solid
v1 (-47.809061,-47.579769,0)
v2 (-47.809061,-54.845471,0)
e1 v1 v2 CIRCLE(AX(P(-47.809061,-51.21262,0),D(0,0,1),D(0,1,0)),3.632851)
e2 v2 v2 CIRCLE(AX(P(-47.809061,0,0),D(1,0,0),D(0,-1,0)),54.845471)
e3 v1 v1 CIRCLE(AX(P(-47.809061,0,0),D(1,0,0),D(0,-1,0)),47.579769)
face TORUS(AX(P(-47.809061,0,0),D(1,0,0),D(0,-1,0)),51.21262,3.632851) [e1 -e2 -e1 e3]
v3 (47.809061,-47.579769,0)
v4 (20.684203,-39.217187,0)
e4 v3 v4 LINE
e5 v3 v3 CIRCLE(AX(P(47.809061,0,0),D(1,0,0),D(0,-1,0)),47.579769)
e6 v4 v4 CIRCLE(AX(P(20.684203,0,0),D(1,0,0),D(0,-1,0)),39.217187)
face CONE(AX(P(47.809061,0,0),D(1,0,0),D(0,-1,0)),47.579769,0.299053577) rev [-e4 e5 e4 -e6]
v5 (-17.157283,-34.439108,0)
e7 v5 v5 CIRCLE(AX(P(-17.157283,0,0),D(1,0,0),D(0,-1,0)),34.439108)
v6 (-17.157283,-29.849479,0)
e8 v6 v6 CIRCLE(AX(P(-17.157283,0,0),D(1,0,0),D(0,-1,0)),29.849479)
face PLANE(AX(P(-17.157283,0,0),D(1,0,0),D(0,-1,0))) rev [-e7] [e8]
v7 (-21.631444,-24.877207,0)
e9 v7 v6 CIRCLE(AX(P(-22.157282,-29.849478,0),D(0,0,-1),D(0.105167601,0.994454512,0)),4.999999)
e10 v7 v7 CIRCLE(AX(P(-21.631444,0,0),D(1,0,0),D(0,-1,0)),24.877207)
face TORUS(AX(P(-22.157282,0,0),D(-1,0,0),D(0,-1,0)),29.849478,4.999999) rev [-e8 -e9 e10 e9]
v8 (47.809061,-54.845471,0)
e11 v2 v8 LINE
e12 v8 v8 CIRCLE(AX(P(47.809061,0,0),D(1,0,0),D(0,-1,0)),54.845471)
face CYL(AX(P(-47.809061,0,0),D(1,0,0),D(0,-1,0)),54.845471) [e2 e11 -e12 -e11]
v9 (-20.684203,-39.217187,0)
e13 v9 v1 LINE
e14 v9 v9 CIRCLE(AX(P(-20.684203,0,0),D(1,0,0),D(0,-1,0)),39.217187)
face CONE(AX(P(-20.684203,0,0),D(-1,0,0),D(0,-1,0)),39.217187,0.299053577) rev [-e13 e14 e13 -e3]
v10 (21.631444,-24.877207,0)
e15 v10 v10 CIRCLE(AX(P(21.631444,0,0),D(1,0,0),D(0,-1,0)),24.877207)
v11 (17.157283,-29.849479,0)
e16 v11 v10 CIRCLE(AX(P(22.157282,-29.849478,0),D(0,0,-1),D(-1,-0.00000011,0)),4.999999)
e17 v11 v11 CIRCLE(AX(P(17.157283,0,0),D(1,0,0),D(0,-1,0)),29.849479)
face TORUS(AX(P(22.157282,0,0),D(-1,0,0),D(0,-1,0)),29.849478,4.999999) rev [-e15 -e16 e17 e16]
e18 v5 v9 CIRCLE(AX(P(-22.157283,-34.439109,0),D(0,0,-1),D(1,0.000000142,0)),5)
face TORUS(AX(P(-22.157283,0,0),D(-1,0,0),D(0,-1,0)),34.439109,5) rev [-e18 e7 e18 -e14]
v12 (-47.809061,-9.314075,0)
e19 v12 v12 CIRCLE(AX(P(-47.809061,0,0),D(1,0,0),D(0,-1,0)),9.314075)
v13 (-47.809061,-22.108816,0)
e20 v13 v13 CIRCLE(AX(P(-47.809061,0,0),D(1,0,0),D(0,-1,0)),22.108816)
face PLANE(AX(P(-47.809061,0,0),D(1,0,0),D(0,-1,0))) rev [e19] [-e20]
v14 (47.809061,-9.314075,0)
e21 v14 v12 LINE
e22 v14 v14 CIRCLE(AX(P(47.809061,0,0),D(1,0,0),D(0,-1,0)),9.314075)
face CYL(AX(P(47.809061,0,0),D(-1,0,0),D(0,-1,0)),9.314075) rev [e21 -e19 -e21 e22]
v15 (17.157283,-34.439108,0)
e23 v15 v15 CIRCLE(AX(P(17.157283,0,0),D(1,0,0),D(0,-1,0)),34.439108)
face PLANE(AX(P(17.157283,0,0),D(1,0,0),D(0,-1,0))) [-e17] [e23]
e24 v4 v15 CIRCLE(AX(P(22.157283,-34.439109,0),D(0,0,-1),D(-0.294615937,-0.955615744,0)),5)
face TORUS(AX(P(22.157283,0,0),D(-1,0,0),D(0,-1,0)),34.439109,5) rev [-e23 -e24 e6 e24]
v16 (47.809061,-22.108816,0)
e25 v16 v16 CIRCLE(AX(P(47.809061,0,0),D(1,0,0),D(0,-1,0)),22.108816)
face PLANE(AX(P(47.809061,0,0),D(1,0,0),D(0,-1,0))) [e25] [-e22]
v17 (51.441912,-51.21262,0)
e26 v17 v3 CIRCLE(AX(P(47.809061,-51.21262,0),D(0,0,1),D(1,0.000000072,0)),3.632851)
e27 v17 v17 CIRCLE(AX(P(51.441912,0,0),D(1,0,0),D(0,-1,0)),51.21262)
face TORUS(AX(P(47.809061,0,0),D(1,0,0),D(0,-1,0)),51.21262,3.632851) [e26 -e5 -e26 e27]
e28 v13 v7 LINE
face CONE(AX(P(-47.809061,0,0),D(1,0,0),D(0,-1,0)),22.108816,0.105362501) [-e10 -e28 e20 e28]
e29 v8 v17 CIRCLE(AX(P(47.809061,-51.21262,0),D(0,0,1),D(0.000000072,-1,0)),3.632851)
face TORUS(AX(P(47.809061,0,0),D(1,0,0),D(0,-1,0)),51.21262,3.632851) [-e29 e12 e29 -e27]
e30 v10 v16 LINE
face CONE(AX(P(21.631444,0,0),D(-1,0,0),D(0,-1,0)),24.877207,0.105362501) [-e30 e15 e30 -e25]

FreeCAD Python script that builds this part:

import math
import FreeCAD as App
import Part
import Sketcher

V = App.Vector
Q = App.Units.Quantity

doc = App.newDocument("Part")
body = doc.addObject("PartDesign::Body", "Body")

sketch1 = body.newObject("Sketcher::SketchObject", "Sketch")
sketch1.AttachmentSupport = (doc.getObject("XY_Plane"), [""])
sketch1.MapMode = "FlatFace"
sketch1.addGeometry([
    Part.LineSegment(V(-47.809061, -9.314075, 0), V(-47.809061, -22.108816, 0)),
    Part.LineSegment(V(-47.809061, -22.108816, 0), V(-21.631444, -24.877207, 0)),
    Part.ArcOfCircle(Part.Circle(V(-22.157282, -29.849478, 0), V(0, 0, 1), 4.999999), math.radians(-0.000006), math.radians(83.963177)),
    Part.LineSegment(V(-17.157283, -29.849479, 0), V(-17.157283, -34.439108, 0)),
    Part.ArcOfCircle(Part.Circle(V(-22.157283, -34.439109, 0), V(0, 0, 1), 5), math.radians(-72.865491), math.radians(0.000008)),
    Part.LineSegment(V(-20.684203, -39.217187, 0), V(-47.809061, -47.579769, 0)),
    Part.ArcOfCircle(Part.Circle(V(-47.809061, -51.21262, 0), V(0, 0, 1), 3.632851), math.radians(90), math.radians(270)),
    Part.LineSegment(V(-47.809061, -54.845471, 0), V(47.809061, -54.845471, 0)),
    Part.ArcOfCircle(Part.Circle(V(47.809061, -51.21262, 0), V(0, 0, 1), 3.632851), math.radians(-89.999996), math.radians(-0.000004)),
    Part.ArcOfCircle(Part.Circle(V(47.809061, -51.21262, 0), V(0, 0, 1), 3.632851), math.radians(0.000004), math.radians(89.999996)),
    Part.LineSegment(V(47.809061, -47.579769, 0), V(20.684203, -39.217187, 0)),
    Part.ArcOfCircle(Part.Circle(V(22.157283, -34.439109, 0), V(0, 0, 1), 5), math.radians(179.999992), math.radians(252.865491)),
    Part.LineSegment(V(17.157283, -34.439108, 0), V(17.157283, -29.849479, 0)),
    Part.ArcOfCircle(Part.Circle(V(22.157282, -29.849478, 0), V(0, 0, 1), 4.999999), math.radians(96.036823), math.radians(180.000006)),
    Part.LineSegment(V(21.631444, -24.877207, 0), V(47.809061, -22.108816, 0)),
    Part.LineSegment(V(47.809061, -22.108816, 0), V(47.809061, -9.314075, 0)),
    Part.LineSegment(V(47.809061, -9.314075, 0), V(-47.809061, -9.314075, 0)),
], False)
sketch1.addConstraint([
    Sketcher.Constraint("Coincident", 0, 2, 1, 1),
    Sketcher.Constraint("Coincident", 1, 2, 2, 2),
    Sketcher.Constraint("Coincident", 2, 1, 3, 1),
    Sketcher.Constraint("Coincident", 3, 2, 4, 2),
    Sketcher.Constraint("Coincident", 4, 1, 5, 1),
    Sketcher.Constraint("Coincident", 5, 2, 6, 1),
    Sketcher.Constraint("Coincident", 6, 2, 7, 1),
    Sketcher.Constraint("Coincident", 7, 2, 8, 1),
    Sketcher.Constraint("Coincident", 8, 2, 9, 1),
    Sketcher.Constraint("Coincident", 9, 2, 10, 1),
    Sketcher.Constraint("Coincident", 10, 2, 11, 2),
    Sketcher.Constraint("Coincident", 11, 1, 12, 1),
    Sketcher.Constraint("Coincident", 12, 2, 13, 2),
    Sketcher.Constraint("Coincident", 13, 1, 14, 1),
    Sketcher.Constraint("Coincident", 14, 2, 15, 1),
    Sketcher.Constraint("Coincident", 15, 2, 16, 1),
    Sketcher.Constraint("Coincident", 16, 2, 0, 1),
    Sketcher.Constraint("Vertical", 0),
    Sketcher.Constraint("Vertical", 3),
    Sketcher.Constraint("Horizontal", 7),
    Sketcher.Constraint("Vertical", 12),
    Sketcher.Constraint("Vertical", 15),
    Sketcher.Constraint("Horizontal", 16),
    Sketcher.Constraint("Coincident", 9, 3, 8, 3),
    Sketcher.Constraint("Radius", 2, Q("4.999999 mm")),
    Sketcher.Constraint("Radius", 4, Q("5 mm")),
    Sketcher.Constraint("Radius", 11, Q("5 mm")),
    Sketcher.Constraint("Radius", 13, Q("4.999999 mm")),
    Sketcher.Constraint("Radius", 6, Q("3.632851 mm")),
    Sketcher.Constraint("Radius", 8, Q("3.632851 mm")),
    Sketcher.Constraint("DistanceX", 7, 1, 7, 2, Q("95.618122 mm")),
    Sketcher.Constraint("DistanceX", 16, 2, 16, 1, Q("95.618122 mm")),
    Sketcher.Constraint("DistanceY", 0, 2, 0, 1, Q("12.794741 mm")),
    Sketcher.Constraint("DistanceY", 3, 2, 3, 1, Q("4.589629 mm")),
    Sketcher.Constraint("DistanceY", 12, 1, 12, 2, Q("4.589629 mm")),
    Sketcher.Constraint("DistanceY", 15, 1, 15, 2, Q("12.794741 mm")),
    Sketcher.Constraint("DistanceY", 4, 3, 1, 2, Q("9.561902 mm")),
    Sketcher.Constraint("DistanceY", 3, 2, 1, 2, Q("9.561901 mm")),
    Sketcher.Constraint("DistanceY", 11, 3, 13, 1, Q("9.561902 mm")),
    Sketcher.Constraint("DistanceY", 11, 1, 13, 1, Q("9.561901 mm")),
    Sketcher.Constraint("Distance", 5, Q("28.384691 mm")),
    Sketcher.Constraint("Distance", 10, Q("28.384691 mm")),
    Sketcher.Constraint("DistanceX", 2, 3, -1, 1, Q("22.157282 mm")),
    Sketcher.Constraint("DistanceY", 2, 3, -1, 1, Q("29.849478 mm")),
    Sketcher.Constraint("DistanceY", 4, 3, -1, 1, Q("34.439109 mm")),
    Sketcher.Constraint("DistanceX", 6, 3, -1, 1, Q("47.809061 mm")),
    Sketcher.Constraint("DistanceY", 6, 3, -1, 1, Q("51.21262 mm")),
    Sketcher.Constraint("DistanceX", -1, 1, 8, 3, Q("47.809061 mm")),
    Sketcher.Constraint("DistanceY", 11, 3, -1, 1, Q("34.439109 mm")),
    Sketcher.Constraint("DistanceX", -1, 1, 13, 3, Q("22.157282 mm")),
    Sketcher.Constraint("DistanceY", 13, 3, -1, 1, Q("29.849478 mm")),
    Sketcher.Constraint("DistanceX", 0, 2, -1, 1, Q("47.809061 mm")),
    Sketcher.Constraint("DistanceX", 5, 2, -1, 1, Q("47.809061 mm")),
    Sketcher.Constraint("DistanceX", 6, 2, -1, 1, Q("47.809061 mm")),
    Sketcher.Constraint("DistanceY", 8, 2, -1, 1, Q("51.21262 mm")),
    Sketcher.Constraint("DistanceX", -1, 1, 9, 2, Q("47.809061 mm")),
    Sketcher.Constraint("DistanceY", 1, 2, 0, 2, Q("2.768391 mm")),
])
revolution = body.newObject("PartDesign::Revolution", "Revolution")
revolution.Profile = sketch1
revolution.ReferenceAxis = (sketch1, ["H_Axis"])
revolution.Angle = 360

doc.recompute()
